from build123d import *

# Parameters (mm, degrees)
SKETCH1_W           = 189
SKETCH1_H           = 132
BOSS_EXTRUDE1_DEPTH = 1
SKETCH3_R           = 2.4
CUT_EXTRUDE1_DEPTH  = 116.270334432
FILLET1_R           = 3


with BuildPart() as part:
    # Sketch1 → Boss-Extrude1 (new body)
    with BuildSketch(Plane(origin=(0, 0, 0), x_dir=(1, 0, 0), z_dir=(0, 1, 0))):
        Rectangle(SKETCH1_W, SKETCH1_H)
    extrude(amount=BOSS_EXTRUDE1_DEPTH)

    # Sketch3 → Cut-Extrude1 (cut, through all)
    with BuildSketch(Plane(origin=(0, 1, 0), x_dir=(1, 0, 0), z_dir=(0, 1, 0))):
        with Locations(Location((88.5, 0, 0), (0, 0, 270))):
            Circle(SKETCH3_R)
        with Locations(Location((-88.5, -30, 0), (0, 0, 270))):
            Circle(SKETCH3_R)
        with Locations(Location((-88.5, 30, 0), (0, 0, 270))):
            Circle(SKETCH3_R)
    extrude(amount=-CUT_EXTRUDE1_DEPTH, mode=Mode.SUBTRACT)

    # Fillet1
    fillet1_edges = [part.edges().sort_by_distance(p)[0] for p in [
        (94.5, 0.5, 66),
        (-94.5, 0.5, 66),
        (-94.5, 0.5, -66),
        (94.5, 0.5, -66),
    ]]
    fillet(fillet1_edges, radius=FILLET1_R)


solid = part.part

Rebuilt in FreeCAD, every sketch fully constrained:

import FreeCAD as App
import Part
import Sketcher

V = App.Vector


def edges_at(feature, points):
    """Names of the edges that pass closest to the given points."""
    edges = feature.Shape.Edges
    near = lambda p: min(range(len(edges)), key=lambda i: edges[i].distToShape(Part.Vertex(*p))[0])
    return sorted({f"Edge{near(p) + 1}" for p in points})


def add_polygon(sketch, points):
    """Adds a closed chain of lines whose ends are joined by coincident constraints."""
    first, n = sketch.GeometryCount, len(points)
    for a, b in zip(points, points[1:] + points[:1]):
        sketch.addGeometry(Part.LineSegment(App.Vector(*a, 0), App.Vector(*b, 0)), False)
    for i in range(n):
        sketch.addConstraint(Sketcher.Constraint("Coincident", first + i, 2, first + (i + 1) % n, 1))

doc = App.newDocument("Part")
body = doc.addObject("PartDesign::Body", "Body")

# Sketch on XZ plane
sketch1 = body.newObject("Sketcher::SketchObject", "Sketch")
sketch1.AttachmentSupport = (doc.getObject("XZ_Plane"), [""])
sketch1.MapMode = "FlatFace"
add_polygon(sketch1, [(-94, -66), (-94, 66), (94, 66), (94, -66)])  # lines 0-3
sketch1.addConstraint([
    Sketcher.Constraint("Vertical", 0),
    Sketcher.Constraint("Horizontal", 1),
    Sketcher.Constraint("Vertical", 2),
    Sketcher.Constraint("Horizontal", 3),
    Sketcher.Constraint("Symmetric", 0, 2, 2, 2, -1, 1),
    Sketcher.Constraint("DistanceX", 1, 1, 1, 2, 189.0),
    Sketcher.Constraint("DistanceY", 0, 1, 0, 2, 132.0),
])
pad1 = body.newObject("PartDesign::Pad", "Pad")
pad1.Profile = sketch1
pad1.Length = 1
pad1.Reversed = True

# Sketch on XZ plane
sketch2 = body.newObject("Sketcher::SketchObject", "Sketch001")
sketch2.AttachmentSupport = (doc.getObject("XZ_Plane"), [""])
sketch2.MapMode = "FlatFace"
sketch2.AttachmentOffset = App.Placement(V(0, 0, -1), App.Rotation())
sketch2.addGeometry([
    Part.Circle(V(88.5, 0, 0), V(0, 0, 1), 2.4),
    Part.Circle(V(-88.5, 30, 0), V(0, 0, 1), 2.4),
    Part.Circle(V(-88.5, -30, 0), V(0, 0, 1), 2.4),
], False)
sketch2.addConstraint([
    Sketcher.Constraint("Equal", 0, 1),
    Sketcher.Constraint("Equal", 1, 2),
    Sketcher.Constraint("Symmetric", 1, 3, 2, 3, -1),
    Sketcher.Constraint("PointOnObject", 0, 3, -1),
    Sketcher.Constraint("Diameter", 0, 4.8),
    Sketcher.Constraint("DistanceY", -1, 1, 1, 3, 30.0),
    Sketcher.Constraint("DistanceX", 1, 3, 0, 3, 177.0),
    Sketcher.Constraint("DistanceX", -1, 1, 0, 3, 88.5),
])
pocket1 = body.newObject("PartDesign::Pocket", "Pocket")
pocket1.Profile = sketch2
pocket1.Type = "ThroughAll"
pocket1.Reversed = True
doc.recompute()

fillet = body.newObject("PartDesign::Fillet", "Fillet")
fillet.Base = (pocket1, edges_at(pocket1, [
    (94.5, 0.5, 66),
    (-94.5, 0.5, 66),
    (-94.5, 0.5, -66),
    (94.5, 0.5, -66),
]))
fillet.Radius = 3

doc.recompute()
